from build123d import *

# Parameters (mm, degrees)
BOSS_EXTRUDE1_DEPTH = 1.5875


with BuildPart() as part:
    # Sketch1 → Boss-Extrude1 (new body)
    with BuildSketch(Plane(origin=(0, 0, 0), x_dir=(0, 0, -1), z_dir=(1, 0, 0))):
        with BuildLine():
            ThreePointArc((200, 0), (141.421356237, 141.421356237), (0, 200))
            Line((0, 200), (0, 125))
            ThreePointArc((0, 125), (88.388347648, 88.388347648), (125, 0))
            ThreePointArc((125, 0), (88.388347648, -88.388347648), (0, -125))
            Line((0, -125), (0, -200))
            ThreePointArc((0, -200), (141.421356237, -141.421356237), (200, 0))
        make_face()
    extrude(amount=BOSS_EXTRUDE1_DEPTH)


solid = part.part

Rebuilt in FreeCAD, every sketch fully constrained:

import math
import FreeCAD as App
import Part
import Sketcher
from FreeCAD import Vector
Q = App.Units.Quantity

doc = App.newDocument("Part")
body = doc.addObject("PartDesign::Body", "Body")

# Sketch on YZ plane
sketch1 = body.newObject("Sketcher::SketchObject", "Sketch")
sketch1.AttachmentSupport = (doc.getObject("YZ_Plane"), [""])
sketch1.MapMode = "FlatFace"
sketch1.addGeometry([
    Part.ArcOfCircle(Part.Circle(Vector(0, 0, 0), Vector(0, 0, 1), 200), math.radians(-90), math.radians(0)),  # 0
    Part.LineSegment(Vector(200, 0, 0), Vector(125, 0, 0)),  # 1
    Part.ArcOfCircle(Part.Circle(Vector(0, 0, 0), Vector(0, 0, 1), 125), math.radians(-90), math.radians(0)),  # 2
    Part.ArcOfCircle(Part.Circle(Vector(0, 0, 0), Vector(0, 0, 1), 125), math.radians(-180), math.radians(-90)),  # 3
    Part.LineSegment(Vector(-125, 0, 0), Vector(-200, 0, 0)),  # 4
    Part.ArcOfCircle(Part.Circle(Vector(0, 0, 0), Vector(0, 0, 1), 200), math.radians(-180), math.radians(-90)),  # 5
], False)
sketch1.addConstraint([
    Sketcher.Constraint("Coincident", 0, 2, 1, 1),
    Sketcher.Constraint("Coincident", 1, 2, 2, 2),
    Sketcher.Constraint("Tangent", 2, 1, 3, 2),
    Sketcher.Constraint("Coincident", 3, 1, 4, 1),
    Sketcher.Constraint("Coincident", 4, 2, 5, 1),
    Sketcher.Constraint("Tangent", 5, 2, 0, 1),
    Sketcher.Constraint("Horizontal", 1),
    Sketcher.Constraint("Horizontal", 4),
    Sketcher.Constraint("Coincident", 0, 3, -1, 1),
    Sketcher.Constraint("Coincident", 2, 3, -1, 1),
    Sketcher.Constraint("Equal", 2, 3),
    Sketcher.Constraint("Equal", 0, 5),
    Sketcher.Constraint("PointOnObject", 0, 2, -1),
    Sketcher.Constraint("PointOnObject", 2, 1, -2),
    Sketcher.Constraint("PointOnObject", 3, 1, -1),
    Sketcher.Constraint("PointOnObject", 5, 2, -2),
    Sketcher.Constraint("Radius", 0, Q("200 mm")),
    Sketcher.Constraint("Radius", 2, Q("125 mm")),
])
pad1 = body.newObject("PartDesign::Pad", "Pad")
pad1.Profile = sketch1
pad1.Length = 1.5875

doc.recompute()
